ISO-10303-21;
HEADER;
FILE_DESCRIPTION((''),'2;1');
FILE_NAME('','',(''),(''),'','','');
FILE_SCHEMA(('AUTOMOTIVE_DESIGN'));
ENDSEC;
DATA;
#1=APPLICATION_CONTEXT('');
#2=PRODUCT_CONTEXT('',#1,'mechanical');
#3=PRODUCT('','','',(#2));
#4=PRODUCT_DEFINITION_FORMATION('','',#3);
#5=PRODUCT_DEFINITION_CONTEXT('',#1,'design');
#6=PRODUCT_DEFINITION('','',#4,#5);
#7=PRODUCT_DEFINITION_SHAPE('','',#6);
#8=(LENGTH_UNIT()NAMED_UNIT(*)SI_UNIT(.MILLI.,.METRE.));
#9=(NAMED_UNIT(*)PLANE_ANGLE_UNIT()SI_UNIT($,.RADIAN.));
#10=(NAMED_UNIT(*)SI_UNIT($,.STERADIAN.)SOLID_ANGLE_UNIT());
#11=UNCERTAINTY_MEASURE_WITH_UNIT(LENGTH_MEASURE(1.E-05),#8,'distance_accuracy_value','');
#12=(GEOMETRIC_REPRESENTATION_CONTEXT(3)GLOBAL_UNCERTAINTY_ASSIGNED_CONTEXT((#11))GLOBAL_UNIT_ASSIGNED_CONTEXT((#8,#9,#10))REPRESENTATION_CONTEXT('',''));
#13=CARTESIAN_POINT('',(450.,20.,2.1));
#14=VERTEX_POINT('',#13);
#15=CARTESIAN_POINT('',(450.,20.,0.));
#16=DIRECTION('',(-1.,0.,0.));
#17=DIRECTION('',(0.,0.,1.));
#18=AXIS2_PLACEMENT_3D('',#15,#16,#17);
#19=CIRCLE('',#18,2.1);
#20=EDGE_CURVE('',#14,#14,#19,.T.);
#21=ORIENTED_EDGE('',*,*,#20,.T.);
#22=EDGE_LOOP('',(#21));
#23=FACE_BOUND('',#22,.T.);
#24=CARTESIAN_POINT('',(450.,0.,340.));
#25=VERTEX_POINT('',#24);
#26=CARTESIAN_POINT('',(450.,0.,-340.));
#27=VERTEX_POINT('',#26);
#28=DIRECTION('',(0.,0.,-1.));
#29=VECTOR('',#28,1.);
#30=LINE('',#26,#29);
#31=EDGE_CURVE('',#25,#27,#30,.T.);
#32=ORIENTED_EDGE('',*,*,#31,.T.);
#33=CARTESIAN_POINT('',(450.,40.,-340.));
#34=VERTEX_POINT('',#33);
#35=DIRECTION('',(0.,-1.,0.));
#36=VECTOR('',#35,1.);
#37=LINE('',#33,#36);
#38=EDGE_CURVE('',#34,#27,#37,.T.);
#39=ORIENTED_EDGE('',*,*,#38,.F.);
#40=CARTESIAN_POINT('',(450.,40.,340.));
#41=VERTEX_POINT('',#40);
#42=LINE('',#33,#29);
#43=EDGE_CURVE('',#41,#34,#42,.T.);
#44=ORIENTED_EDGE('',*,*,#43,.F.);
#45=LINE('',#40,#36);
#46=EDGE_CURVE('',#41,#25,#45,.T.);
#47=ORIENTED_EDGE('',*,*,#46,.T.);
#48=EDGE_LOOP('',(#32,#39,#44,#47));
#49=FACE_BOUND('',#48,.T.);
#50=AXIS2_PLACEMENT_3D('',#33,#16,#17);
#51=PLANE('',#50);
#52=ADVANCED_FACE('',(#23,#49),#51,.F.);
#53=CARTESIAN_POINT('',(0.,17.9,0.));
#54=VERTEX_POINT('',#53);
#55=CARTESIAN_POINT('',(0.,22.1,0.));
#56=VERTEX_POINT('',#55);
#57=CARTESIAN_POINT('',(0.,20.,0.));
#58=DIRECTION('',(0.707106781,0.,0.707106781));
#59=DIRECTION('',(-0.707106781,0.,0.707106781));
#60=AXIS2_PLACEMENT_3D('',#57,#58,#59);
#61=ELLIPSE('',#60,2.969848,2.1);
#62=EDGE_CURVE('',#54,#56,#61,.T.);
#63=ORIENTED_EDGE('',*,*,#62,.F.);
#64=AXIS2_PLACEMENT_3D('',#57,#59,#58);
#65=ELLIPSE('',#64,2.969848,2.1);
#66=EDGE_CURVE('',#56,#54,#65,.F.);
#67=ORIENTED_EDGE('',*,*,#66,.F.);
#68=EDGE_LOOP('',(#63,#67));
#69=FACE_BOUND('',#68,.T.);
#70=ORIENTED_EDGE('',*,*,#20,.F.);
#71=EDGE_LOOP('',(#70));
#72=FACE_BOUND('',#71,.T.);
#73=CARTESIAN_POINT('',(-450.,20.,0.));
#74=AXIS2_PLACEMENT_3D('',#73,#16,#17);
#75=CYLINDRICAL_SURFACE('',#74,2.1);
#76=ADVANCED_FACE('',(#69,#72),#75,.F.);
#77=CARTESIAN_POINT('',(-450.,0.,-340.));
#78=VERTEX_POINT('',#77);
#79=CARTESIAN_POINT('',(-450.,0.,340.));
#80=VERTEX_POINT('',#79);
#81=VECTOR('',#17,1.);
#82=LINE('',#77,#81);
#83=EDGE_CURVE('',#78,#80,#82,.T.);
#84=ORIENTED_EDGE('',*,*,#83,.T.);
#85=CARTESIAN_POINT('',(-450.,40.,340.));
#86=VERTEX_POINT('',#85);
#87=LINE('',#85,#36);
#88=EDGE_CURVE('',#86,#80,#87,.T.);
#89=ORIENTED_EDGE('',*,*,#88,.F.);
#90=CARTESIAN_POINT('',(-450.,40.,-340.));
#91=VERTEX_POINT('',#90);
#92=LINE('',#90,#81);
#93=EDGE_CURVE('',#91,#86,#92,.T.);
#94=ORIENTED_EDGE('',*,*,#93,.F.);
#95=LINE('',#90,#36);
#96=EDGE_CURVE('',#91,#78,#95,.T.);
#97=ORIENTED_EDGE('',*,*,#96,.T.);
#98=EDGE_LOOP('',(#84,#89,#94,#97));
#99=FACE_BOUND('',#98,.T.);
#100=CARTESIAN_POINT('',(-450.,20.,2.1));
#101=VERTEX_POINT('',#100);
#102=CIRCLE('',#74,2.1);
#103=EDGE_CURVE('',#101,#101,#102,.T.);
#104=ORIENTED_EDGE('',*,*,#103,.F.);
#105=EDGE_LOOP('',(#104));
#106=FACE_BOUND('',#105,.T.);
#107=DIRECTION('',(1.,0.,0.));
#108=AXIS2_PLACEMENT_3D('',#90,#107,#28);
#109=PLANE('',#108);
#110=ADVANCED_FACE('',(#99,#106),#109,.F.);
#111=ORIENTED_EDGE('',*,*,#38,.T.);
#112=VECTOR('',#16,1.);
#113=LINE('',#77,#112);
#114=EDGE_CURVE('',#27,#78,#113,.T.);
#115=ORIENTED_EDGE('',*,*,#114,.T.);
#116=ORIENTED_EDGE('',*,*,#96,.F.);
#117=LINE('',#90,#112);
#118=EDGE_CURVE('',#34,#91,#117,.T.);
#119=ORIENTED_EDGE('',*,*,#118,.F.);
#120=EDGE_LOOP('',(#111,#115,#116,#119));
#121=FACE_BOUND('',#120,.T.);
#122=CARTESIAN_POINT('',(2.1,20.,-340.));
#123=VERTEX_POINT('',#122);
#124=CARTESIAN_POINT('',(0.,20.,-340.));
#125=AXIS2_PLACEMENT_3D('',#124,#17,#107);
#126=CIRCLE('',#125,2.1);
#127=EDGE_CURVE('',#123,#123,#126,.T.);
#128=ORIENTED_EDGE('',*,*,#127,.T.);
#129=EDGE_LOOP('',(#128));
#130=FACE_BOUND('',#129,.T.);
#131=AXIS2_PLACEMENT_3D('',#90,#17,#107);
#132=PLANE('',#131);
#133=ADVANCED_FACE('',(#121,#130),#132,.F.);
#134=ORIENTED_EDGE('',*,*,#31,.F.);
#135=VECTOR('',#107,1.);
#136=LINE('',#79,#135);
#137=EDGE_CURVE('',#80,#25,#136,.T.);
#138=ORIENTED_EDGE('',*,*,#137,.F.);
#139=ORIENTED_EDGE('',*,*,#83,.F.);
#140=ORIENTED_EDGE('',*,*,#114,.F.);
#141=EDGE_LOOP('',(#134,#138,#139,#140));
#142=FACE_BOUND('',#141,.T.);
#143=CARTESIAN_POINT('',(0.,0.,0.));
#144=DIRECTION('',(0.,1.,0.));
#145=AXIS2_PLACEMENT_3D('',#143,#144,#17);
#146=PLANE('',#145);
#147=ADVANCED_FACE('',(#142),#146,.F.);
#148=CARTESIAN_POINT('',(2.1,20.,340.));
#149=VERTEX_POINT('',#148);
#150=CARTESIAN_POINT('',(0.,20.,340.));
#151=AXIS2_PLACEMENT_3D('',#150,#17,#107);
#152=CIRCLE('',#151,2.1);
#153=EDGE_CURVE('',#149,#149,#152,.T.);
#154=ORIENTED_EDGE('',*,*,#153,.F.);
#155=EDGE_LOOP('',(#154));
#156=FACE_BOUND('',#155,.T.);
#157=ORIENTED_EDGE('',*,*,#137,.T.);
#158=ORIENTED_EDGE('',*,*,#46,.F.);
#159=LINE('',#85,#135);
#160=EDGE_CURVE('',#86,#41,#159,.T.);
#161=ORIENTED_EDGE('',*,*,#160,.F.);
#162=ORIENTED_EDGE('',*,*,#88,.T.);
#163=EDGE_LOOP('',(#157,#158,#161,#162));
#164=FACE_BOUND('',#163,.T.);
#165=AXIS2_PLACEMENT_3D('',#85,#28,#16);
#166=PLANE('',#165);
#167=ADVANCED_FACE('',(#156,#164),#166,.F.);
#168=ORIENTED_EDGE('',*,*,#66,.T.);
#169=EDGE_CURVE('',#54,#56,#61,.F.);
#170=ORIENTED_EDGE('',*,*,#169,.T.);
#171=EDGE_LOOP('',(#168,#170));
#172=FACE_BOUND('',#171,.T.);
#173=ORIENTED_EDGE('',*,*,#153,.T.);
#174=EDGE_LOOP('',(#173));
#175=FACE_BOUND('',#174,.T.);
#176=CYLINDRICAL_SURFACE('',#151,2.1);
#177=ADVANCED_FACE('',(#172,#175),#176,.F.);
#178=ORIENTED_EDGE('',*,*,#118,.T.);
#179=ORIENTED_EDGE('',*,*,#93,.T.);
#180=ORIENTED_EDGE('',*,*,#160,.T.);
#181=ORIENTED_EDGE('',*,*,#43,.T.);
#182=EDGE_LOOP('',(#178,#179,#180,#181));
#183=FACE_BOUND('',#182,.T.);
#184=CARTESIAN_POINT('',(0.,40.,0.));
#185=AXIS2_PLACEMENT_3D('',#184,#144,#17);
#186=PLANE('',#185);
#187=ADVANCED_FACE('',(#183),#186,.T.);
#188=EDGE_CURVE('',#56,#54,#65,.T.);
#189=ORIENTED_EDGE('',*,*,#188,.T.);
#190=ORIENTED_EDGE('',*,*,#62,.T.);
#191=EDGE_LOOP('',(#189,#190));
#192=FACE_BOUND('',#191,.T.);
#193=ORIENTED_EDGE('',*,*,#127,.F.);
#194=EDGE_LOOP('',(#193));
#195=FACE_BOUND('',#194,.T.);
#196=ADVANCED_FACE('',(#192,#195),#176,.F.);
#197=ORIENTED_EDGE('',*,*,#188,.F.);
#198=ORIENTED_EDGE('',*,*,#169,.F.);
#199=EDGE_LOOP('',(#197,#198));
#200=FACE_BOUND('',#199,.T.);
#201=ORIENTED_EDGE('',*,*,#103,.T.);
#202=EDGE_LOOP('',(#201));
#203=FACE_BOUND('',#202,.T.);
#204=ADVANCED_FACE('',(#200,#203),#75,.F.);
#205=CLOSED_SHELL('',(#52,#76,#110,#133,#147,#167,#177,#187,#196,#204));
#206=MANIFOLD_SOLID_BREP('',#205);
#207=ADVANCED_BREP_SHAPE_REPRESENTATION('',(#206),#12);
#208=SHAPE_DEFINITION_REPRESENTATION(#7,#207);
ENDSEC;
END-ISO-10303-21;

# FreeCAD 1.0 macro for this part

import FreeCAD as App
import Part
import Sketcher
Q = App.Units.Quantity

doc = App.newDocument("Part")
body = doc.addObject("PartDesign::Body", "Body")

# Sketch on XZ plane
sketch1 = doc.addObject("Sketcher::SketchObject", "Sketch")
body.addObject(sketch1)
sketch1.AttachmentSupport = (doc.XZ_Plane, [""])
sketch1.MapMode = "FlatFace"
sketch1.addGeometry(Part.LineSegment(App.Vector(-450, -340, 0), App.Vector(-450, 340, 0)), False)
sketch1.addGeometry(Part.LineSegment(App.Vector(-450, 340, 0), App.Vector(450, 340, 0)), False)
sketch1.addGeometry(Part.LineSegment(App.Vector(450, 340, 0), App.Vector(450, -340, 0)), False)
sketch1.addGeometry(Part.LineSegment(App.Vector(450, -340, 0), App.Vector(-450, -340, 0)), False)
sketch1.addConstraint(Sketcher.Constraint("Coincident", 0, 2, 1, 1))
sketch1.addConstraint(Sketcher.Constraint("Coincident", 1, 2, 2, 1))
sketch1.addConstraint(Sketcher.Constraint("Coincident", 2, 2, 3, 1))
sketch1.addConstraint(Sketcher.Constraint("Coincident", 3, 2, 0, 1))
sketch1.addConstraint(Sketcher.Constraint("Vertical", 0))
sketch1.addConstraint(Sketcher.Constraint("Horizontal", 1))
sketch1.addConstraint(Sketcher.Constraint("Vertical", 2))
sketch1.addConstraint(Sketcher.Constraint("Horizontal", 3))
sketch1.addConstraint(Sketcher.Constraint("Symmetric", 0, 2, 2, 2, -1, 1))
sketch1.addConstraint(Sketcher.Constraint("DistanceX", 1, 1, 1, 2, Q("900 mm")))
sketch1.addConstraint(Sketcher.Constraint("DistanceY", 0, 1, 0, 2, Q("680 mm")))
pad1 = doc.addObject("PartDesign::Pad", "Pad")
body.addObject(pad1)
pad1.Profile = sketch1
pad1.Length = 40
pad1.Reversed = True

# Sketch on XY plane
sketch2 = doc.addObject("Sketcher::SketchObject", "Sketch001")
body.addObject(sketch2)
sketch2.AttachmentSupport = (doc.XY_Plane, [""])
sketch2.MapMode = "FlatFace"
sketch2.AttachmentOffset = App.Placement(App.Vector(0, 0, 340), App.Rotation())
sketch2.addGeometry(Part.Circle(App.Vector(0, 20, 0), App.Vector(0, 0, 1), 2.1), False)
sketch2.addConstraint(Sketcher.Constraint("PointOnObject", 0, 3, -2))
sketch2.addConstraint(Sketcher.Constraint("Diameter", 0, Q("4.2 mm")))
sketch2.addConstraint(Sketcher.Constraint("DistanceY", -1, 1, 0, 3, Q("20 mm")))
doc.recompute()
hole = doc.addObject("PartDesign::Hole", "Hole")
body.addObject(hole)
hole.Profile = sketch2
hole.ThreadType = "None"
hole.Diameter = 4.2
hole.DepthType = "ThroughAll"

# Sketch on YZ plane
sketch3 = doc.addObject("Sketcher::SketchObject", "Sketch002")
body.addObject(sketch3)
sketch3.AttachmentSupport = (doc.YZ_Plane, [""])
sketch3.MapMode = "FlatFace"
sketch3.AttachmentOffset = App.Placement(App.Vector(0, 0, -450), App.Rotation())
sketch3.addGeometry(Part.Circle(App.Vector(20, 0, 0), App.Vector(0, 0, 1), 2.1), False)
sketch3.addConstraint(Sketcher.Constraint("PointOnObject", 0, 3, -1))
sketch3.addConstraint(Sketcher.Constraint("Diameter", 0, Q("4.2 mm")))
sketch3.addConstraint(Sketcher.Constraint("DistanceX", -1, 1, 0, 3, Q("20 mm")))
doc.recompute()
hole2 = doc.addObject("PartDesign::Hole", "Hole001")
body.addObject(hole2)
hole2.Profile = sketch3
hole2.ThreadType = "None"
hole2.Diameter = 4.2
hole2.DepthType = "ThroughAll"
hole2.Reversed = True

doc.recompute()
